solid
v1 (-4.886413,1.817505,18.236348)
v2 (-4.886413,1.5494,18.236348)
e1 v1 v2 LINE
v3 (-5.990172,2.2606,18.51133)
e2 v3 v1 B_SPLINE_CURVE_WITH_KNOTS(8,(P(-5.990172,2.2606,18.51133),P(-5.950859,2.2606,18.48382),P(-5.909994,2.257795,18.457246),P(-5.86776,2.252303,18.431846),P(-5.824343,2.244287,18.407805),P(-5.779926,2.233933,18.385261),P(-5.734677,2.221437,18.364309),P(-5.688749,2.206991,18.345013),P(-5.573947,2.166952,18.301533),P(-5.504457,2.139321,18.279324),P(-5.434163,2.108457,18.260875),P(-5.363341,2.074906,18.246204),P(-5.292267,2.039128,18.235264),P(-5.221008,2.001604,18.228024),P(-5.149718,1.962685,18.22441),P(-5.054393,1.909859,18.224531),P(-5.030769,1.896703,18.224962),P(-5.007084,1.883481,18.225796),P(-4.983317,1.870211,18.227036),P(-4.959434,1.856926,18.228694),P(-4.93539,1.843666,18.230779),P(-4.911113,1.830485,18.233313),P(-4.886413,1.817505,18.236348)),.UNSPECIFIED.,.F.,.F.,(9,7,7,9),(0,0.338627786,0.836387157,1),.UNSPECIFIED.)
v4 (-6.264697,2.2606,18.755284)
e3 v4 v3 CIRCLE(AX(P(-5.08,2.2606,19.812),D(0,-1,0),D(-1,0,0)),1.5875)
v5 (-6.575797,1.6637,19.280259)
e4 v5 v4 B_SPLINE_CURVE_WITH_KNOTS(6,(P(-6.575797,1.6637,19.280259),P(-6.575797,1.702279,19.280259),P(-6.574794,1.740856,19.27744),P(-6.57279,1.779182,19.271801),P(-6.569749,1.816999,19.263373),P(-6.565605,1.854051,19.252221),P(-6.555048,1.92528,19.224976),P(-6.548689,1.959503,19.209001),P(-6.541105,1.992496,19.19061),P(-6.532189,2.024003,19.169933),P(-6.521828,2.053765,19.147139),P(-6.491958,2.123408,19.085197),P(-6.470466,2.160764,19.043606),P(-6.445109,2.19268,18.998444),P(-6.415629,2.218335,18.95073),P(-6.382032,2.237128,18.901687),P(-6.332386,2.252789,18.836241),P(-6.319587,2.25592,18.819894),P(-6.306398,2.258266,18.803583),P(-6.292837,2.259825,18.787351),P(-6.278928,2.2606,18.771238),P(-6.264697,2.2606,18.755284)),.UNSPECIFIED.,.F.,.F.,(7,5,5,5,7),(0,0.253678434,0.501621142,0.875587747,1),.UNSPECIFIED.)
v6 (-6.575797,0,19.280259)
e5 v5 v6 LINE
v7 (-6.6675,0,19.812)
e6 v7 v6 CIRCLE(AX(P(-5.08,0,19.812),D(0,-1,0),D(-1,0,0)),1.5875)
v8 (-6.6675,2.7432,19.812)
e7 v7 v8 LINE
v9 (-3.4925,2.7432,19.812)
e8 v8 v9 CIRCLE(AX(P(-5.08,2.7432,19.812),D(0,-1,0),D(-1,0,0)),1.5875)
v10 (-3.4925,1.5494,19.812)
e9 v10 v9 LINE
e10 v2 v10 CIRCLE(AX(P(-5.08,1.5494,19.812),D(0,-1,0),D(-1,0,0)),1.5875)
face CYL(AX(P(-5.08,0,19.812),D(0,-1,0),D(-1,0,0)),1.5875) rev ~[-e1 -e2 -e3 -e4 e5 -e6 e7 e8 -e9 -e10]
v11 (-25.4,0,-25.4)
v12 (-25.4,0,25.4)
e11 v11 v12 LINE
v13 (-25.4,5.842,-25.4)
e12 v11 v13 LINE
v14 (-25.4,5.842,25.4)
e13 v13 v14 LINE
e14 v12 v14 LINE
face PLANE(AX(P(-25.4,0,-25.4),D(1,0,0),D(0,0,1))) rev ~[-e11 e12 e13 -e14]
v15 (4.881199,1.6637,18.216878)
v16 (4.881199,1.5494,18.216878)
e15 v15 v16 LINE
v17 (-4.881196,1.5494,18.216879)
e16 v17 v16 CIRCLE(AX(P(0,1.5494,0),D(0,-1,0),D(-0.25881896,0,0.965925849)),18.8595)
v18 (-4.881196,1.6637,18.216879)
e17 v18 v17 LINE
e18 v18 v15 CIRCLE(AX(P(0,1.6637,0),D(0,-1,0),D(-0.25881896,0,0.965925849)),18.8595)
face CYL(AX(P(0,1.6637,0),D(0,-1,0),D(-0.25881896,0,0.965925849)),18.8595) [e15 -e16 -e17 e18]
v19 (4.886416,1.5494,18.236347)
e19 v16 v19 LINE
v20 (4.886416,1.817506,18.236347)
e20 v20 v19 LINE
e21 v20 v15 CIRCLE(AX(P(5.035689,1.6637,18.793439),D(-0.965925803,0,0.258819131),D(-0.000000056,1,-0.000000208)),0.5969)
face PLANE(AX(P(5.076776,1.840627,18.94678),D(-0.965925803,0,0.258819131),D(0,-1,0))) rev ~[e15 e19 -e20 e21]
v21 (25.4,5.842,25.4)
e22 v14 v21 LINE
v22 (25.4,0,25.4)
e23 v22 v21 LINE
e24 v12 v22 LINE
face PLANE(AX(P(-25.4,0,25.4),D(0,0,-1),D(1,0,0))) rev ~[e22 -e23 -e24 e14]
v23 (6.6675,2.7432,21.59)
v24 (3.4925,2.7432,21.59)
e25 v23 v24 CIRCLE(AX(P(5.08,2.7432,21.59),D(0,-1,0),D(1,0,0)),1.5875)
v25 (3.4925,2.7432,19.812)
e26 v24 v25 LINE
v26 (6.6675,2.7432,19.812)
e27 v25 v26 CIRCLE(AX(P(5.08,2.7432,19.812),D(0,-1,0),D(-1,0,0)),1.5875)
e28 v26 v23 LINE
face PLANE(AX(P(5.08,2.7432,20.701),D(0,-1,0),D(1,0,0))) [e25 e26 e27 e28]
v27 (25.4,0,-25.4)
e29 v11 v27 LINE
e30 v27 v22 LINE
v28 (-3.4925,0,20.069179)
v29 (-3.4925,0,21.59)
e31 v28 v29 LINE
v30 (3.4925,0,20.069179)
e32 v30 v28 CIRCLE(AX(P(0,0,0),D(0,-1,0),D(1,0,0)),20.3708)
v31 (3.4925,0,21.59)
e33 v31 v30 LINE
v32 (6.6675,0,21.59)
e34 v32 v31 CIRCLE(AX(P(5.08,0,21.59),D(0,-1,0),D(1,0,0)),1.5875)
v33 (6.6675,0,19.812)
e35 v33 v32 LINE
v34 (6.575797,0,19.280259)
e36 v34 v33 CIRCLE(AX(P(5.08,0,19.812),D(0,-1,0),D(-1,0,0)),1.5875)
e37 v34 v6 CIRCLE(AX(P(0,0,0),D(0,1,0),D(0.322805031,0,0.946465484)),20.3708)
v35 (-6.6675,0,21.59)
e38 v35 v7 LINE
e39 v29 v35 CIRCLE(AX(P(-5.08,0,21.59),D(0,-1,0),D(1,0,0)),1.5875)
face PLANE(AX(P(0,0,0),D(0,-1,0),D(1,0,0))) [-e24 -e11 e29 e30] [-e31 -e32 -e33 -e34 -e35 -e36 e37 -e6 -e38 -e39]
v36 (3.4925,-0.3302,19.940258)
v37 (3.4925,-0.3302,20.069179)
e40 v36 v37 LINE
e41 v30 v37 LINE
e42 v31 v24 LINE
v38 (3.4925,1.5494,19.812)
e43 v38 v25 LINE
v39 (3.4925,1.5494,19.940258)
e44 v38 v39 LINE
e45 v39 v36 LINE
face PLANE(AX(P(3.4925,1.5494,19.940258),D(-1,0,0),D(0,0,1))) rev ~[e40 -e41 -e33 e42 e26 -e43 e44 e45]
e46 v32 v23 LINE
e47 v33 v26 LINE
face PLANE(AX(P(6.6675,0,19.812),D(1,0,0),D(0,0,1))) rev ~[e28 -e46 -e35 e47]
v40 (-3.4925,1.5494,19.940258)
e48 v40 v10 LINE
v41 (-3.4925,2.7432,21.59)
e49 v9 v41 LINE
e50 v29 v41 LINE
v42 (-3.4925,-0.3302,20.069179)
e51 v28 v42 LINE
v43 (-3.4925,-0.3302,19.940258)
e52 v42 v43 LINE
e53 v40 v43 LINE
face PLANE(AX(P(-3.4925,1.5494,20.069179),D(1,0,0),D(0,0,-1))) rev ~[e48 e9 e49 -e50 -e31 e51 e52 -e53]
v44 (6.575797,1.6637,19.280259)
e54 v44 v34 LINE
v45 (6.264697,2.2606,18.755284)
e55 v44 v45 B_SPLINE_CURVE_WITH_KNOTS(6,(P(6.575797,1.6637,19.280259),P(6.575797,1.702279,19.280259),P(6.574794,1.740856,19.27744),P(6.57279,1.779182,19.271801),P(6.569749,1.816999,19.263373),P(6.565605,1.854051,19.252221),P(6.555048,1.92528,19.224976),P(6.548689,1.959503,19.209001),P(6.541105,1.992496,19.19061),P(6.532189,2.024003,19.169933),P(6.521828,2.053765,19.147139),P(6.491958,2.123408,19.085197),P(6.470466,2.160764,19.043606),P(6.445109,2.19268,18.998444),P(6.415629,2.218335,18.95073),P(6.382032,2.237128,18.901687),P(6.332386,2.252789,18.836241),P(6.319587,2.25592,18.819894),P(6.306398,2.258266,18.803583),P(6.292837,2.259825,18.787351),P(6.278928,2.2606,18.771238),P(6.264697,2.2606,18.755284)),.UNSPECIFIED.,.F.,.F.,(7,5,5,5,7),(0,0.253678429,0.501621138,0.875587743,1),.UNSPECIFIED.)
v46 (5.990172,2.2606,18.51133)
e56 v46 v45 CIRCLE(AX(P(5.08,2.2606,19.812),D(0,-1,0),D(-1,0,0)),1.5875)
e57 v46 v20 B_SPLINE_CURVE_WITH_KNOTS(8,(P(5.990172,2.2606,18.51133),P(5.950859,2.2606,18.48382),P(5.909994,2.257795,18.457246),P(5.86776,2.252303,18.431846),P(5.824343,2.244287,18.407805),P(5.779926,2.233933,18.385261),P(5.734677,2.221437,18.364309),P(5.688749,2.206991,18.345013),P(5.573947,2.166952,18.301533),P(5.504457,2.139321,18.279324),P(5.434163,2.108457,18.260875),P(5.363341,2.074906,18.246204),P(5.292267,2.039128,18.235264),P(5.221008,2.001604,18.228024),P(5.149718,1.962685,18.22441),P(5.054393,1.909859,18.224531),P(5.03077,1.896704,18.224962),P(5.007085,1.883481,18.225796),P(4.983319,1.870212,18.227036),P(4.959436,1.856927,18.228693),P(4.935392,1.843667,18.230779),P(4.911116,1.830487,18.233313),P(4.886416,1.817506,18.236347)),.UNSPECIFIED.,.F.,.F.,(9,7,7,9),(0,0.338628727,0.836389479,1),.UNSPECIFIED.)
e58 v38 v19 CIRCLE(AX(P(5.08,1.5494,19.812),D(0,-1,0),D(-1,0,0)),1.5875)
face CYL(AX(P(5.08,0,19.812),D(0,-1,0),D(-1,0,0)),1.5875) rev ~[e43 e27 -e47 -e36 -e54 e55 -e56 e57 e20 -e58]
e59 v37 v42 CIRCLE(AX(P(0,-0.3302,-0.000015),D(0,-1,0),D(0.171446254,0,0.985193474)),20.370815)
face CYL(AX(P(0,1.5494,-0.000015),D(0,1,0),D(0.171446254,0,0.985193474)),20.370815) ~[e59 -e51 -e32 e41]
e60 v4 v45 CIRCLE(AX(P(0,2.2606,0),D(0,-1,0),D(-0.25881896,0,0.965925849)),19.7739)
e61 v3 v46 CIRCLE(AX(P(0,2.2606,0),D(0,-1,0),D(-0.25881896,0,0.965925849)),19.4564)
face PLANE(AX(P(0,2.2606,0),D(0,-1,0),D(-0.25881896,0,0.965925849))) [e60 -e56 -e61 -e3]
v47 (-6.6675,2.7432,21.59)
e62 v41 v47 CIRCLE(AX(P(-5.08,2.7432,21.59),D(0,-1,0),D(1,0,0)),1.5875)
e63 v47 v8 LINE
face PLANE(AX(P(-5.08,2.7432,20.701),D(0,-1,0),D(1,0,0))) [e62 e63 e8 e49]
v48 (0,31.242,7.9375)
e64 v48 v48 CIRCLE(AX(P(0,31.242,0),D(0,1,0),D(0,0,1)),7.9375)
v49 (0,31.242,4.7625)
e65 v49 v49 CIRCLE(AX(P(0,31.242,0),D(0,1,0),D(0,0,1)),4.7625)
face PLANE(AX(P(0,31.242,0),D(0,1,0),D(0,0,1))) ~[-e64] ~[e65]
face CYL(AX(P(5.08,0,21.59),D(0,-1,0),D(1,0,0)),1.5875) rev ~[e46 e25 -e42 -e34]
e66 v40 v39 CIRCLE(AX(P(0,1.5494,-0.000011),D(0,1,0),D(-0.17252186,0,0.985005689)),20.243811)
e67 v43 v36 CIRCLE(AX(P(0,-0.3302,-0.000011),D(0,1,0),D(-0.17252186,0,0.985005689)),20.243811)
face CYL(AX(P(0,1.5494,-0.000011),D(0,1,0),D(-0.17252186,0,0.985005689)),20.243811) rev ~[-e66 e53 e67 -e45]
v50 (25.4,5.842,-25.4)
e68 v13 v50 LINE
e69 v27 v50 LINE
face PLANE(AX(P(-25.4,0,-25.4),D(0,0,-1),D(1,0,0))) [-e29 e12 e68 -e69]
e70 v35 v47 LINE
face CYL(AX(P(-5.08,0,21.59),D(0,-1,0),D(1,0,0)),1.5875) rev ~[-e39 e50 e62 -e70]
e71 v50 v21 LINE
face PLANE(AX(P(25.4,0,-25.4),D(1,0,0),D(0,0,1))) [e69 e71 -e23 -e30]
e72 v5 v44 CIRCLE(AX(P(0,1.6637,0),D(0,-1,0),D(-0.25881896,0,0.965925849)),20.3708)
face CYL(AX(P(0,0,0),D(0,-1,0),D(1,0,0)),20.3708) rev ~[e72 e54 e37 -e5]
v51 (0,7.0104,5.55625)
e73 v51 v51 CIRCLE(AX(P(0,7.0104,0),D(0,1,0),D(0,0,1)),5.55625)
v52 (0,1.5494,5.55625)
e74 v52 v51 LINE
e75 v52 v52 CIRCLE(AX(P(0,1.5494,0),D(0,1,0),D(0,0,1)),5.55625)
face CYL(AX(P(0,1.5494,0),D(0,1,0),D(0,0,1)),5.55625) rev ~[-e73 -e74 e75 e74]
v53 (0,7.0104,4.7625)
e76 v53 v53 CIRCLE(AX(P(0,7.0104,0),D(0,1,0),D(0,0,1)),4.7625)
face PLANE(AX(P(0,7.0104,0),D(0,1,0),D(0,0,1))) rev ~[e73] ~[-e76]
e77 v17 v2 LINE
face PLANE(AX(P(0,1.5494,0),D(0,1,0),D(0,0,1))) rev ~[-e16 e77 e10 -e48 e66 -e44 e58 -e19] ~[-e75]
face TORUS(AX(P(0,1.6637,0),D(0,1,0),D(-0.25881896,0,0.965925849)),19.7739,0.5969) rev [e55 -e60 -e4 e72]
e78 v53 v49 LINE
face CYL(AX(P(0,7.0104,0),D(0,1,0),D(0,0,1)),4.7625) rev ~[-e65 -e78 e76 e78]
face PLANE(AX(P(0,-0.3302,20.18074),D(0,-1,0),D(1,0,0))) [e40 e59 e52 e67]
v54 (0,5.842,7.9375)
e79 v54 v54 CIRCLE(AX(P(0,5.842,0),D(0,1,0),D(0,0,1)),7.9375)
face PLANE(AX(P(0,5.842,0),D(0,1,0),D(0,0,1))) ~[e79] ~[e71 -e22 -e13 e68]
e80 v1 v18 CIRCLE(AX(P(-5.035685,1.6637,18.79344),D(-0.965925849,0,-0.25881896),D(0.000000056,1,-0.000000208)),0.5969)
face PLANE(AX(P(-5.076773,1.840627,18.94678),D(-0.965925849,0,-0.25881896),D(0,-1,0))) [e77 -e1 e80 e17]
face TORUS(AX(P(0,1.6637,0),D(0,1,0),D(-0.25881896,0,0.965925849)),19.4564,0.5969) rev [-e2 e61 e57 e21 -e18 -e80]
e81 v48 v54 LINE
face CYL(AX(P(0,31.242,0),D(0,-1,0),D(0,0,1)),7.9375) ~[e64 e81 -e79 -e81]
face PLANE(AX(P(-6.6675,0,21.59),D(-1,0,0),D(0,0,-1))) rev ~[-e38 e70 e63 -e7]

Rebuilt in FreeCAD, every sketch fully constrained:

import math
import FreeCAD as App
import Part
import Sketcher

V = App.Vector
Q = App.Units.Quantity

doc = App.newDocument("Part")
body = doc.addObject("PartDesign::Body", "Body")

# Sketch on XZ plane
sketch1 = body.newObject("Sketcher::SketchObject", "Sketch")
sketch1.AttachmentSupport = (doc.getObject("XZ_Plane"), [""])
sketch1.MapMode = "FlatFace"
sketch1.addGeometry(Part.LineSegment(V(-25, 25, 0), V(-25, -25, 0)), False)
sketch1.addGeometry(Part.LineSegment(V(-25, -25, 0), V(25, -25, 0)), False)
sketch1.addGeometry(Part.LineSegment(V(25, -25, 0), V(25, 25, 0)), False)
sketch1.addGeometry(Part.LineSegment(V(25, 25, 0), V(-25, 25, 0)), False)
sketch1.addGeometry(Part.Circle(V(0, 0, 0), V(0, 0, 1), 20), False)
sketch1.addConstraint(Sketcher.Constraint("Coincident", 0, 2, 1, 1))
sketch1.addConstraint(Sketcher.Constraint("Coincident", 1, 2, 2, 1))
sketch1.addConstraint(Sketcher.Constraint("Coincident", 2, 2, 3, 1))
sketch1.addConstraint(Sketcher.Constraint("Coincident", 3, 2, 0, 1))
sketch1.addConstraint(Sketcher.Constraint("Vertical", 0))
sketch1.addConstraint(Sketcher.Constraint("Horizontal", 1))
sketch1.addConstraint(Sketcher.Constraint("Vertical", 2))
sketch1.addConstraint(Sketcher.Constraint("Horizontal", 3))
sketch1.addConstraint(Sketcher.Constraint("Coincident", 4, 3, -1, 1))
sketch1.addConstraint(Sketcher.Constraint("Symmetric", 0, 2, 2, 2, -1, 1))
sketch1.addConstraint(Sketcher.Constraint("Equal", 3, 0))
sketch1.addConstraint(Sketcher.Constraint("DistanceX", 1, 1, 1, 2, Q("2 in")))
sketch1.addConstraint(Sketcher.Constraint("Diameter", 4, Q("1.604 in")))
pad1 = body.newObject("PartDesign::Pad", "Pad")
pad1.Profile = sketch1
pad1.Length = Q("0.23 in")
pad1.Reversed = True

# Sketch on YZ plane
sketch2 = body.newObject("Sketcher::SketchObject", "Sketch001")
sketch2.AttachmentSupport = (doc.getObject("YZ_Plane"), [""])
sketch2.MapMode = "FlatFace"
sketch2.addGeometry(Part.LineSegment(V(7, 4.8, 0), V(31.2, 4.8, 0)), False)
sketch2.addGeometry(Part.LineSegment(V(31.2, 4.8, 0), V(31.2, 7.9, 0)), False)
sketch2.addGeometry(Part.LineSegment(V(31.2, 7.9, 0), V(5.8, 7.9, 0)), False)
sketch2.addGeometry(Part.LineSegment(V(5.8, 7.9, 0), V(5.8, 20.4, 0)), False)
sketch2.addGeometry(Part.LineSegment(V(5.8, 20.4, 0), V(1.5, 20.4, 0)), False)
sketch2.addGeometry(Part.LineSegment(V(1.5, 20.4, 0), V(1.5, 5.6, 0)), False)
sketch2.addGeometry(Part.LineSegment(V(1.5, 5.6, 0), V(7, 5.6, 0)), False)
sketch2.addGeometry(Part.LineSegment(V(7, 5.6, 0), V(7, 4.8, 0)), False)
sketch2.addConstraint(Sketcher.Constraint("Coincident", 0, 2, 1, 1))
sketch2.addConstraint(Sketcher.Constraint("Coincident", 1, 2, 2, 1))
sketch2.addConstraint(Sketcher.Constraint("Coincident", 2, 2, 3, 1))
sketch2.addConstraint(Sketcher.Constraint("Coincident", 3, 2, 4, 1))
sketch2.addConstraint(Sketcher.Constraint("Coincident", 4, 2, 5, 1))
sketch2.addConstraint(Sketcher.Constraint("Coincident", 5, 2, 6, 1))
sketch2.addConstraint(Sketcher.Constraint("Coincident", 6, 2, 7, 1))
sketch2.addConstraint(Sketcher.Constraint("Coincident", 7, 2, 0, 1))
sketch2.addConstraint(Sketcher.Constraint("Horizontal", 0))
sketch2.addConstraint(Sketcher.Constraint("Vertical", 1))
sketch2.addConstraint(Sketcher.Constraint("Horizontal", 2))
sketch2.addConstraint(Sketcher.Constraint("Vertical", 3))
sketch2.addConstraint(Sketcher.Constraint("Horizontal", 4))
sketch2.addConstraint(Sketcher.Constraint("Vertical", 5))
sketch2.addConstraint(Sketcher.Constraint("Horizontal", 6))
sketch2.addConstraint(Sketcher.Constraint("Vertical", 7))
sketch2.addConstraint(Sketcher.Constraint("DistanceX", 2, 2, 2, 1, Q("1 in")))
sketch2.addConstraint(Sketcher.Constraint("DistanceX", 0, 1, 0, 2, Q("0.954 in")))
sketch2.addConstraint(Sketcher.Constraint("DistanceX", 4, 2, 4, 1, Q("0.169 in")))
sketch2.addConstraint(Sketcher.Constraint("DistanceY", 1, 1, 1, 2, Q("0.125 in")))
sketch2.addConstraint(Sketcher.Constraint("DistanceY", 7, 2, 7, 1, Q("0.03125 in")))
sketch2.addConstraint(Sketcher.Constraint("DistanceX", -1, 1, 0, 2, Q("1.23 in")))
sketch2.addConstraint(Sketcher.Constraint("DistanceY", 3, 1, 3, 2, Q("0.4895 in")))
sketch2.addConstraint(Sketcher.Constraint("DistanceY", -1, 1, 0, 2, Q("0.1875 in")))
revolution = body.newObject("PartDesign::Revolution", "Revolution")
revolution.Profile = sketch2
revolution.ReferenceAxis = (sketch2, ["H_Axis"])
revolution.Angle = 360

# Sketch on an angled plane
sketch3 = body.newObject("Sketcher::SketchObject", "Sketch002")
sketch3.Placement = App.Placement(V(0, 0, 0), App.Rotation(V(0, -1, 0), V(-0.25881896, 0, 0.965925849), V(-0.965925849, 0, -0.25881896), "ZXY"))
sketch3.addGeometry(Part.LineSegment(V(-1.55, 20.37, 0), V(-1.66, 20.37, 0)), False)
sketch3.addGeometry(Part.ArcOfCircle(Part.Circle(V(-1.66, 19.77, 0), V(0, 0, 1), 0.6), math.radians(90), math.radians(180)), False)
sketch3.addGeometry(Part.LineSegment(V(-2.26, 19.77, 0), V(-2.26, 19.46, 0)), False)
sketch3.addGeometry(Part.ArcOfCircle(Part.Circle(V(-1.66, 19.46, 0), V(0, 0, 1), 0.6), math.radians(-180), math.radians(-90)), False)
sketch3.addGeometry(Part.LineSegment(V(-1.66, 18.86, 0), V(-1.55, 18.86, 0)), False)
sketch3.addGeometry(Part.LineSegment(V(-1.55, 18.86, 0), V(-1.55, 20.37, 0)), False)
sketch3.addConstraint(Sketcher.Constraint("Tangent", 0, 2, 1, 1))
sketch3.addConstraint(Sketcher.Constraint("Tangent", 1, 2, 2, 1))
sketch3.addConstraint(Sketcher.Constraint("Tangent", 2, 2, 3, 1))
sketch3.addConstraint(Sketcher.Constraint("Tangent", 3, 2, 4, 1))
sketch3.addConstraint(Sketcher.Constraint("Coincident", 4, 2, 5, 1))
sketch3.addConstraint(Sketcher.Constraint("Coincident", 5, 2, 0, 1))
sketch3.addConstraint(Sketcher.Constraint("Horizontal", 0))
sketch3.addConstraint(Sketcher.Constraint("Vertical", 2))
sketch3.addConstraint(Sketcher.Constraint("Horizontal", 4))
sketch3.addConstraint(Sketcher.Constraint("Vertical", 5))
sketch3.addConstraint(Sketcher.Constraint("Equal", 1, 3))
sketch3.addConstraint(Sketcher.Constraint("Radius", 1, Q("0.0235 in")))
sketch3.addConstraint(Sketcher.Constraint("DistanceX", 0, 2, 0, 1, Q("0.0045 in")))
sketch3.addConstraint(Sketcher.Constraint("DistanceY", 2, 2, 2, 1, Q("0.0125 in")))
sketch3.addConstraint(Sketcher.Constraint("DistanceY", -1, 1, 3, 3, Q("0.766 in")))
sketch3.addConstraint(Sketcher.Constraint("DistanceX", 1, 2, -1, 1, Q("0.089 in")))
groove = body.newObject("PartDesign::Groove", "Groove")
groove.Profile = sketch3
groove.ReferenceAxis = (sketch3, ["H_Axis"])
groove.Angle = 330

# Sketch on XZ plane
sketch4 = body.newObject("Sketcher::SketchObject", "Sketch003")
sketch4.AttachmentSupport = (doc.getObject("XZ_Plane"), [""])
sketch4.MapMode = "FlatFace"
sketch4.addGeometry(Part.LineSegment(V(-3.5, 19.8, 0), V(-3.5, 21.6, 0)), False)
sketch4.addGeometry(Part.ArcOfCircle(Part.Circle(V(-5.1, 21.6, 0), V(0, 0, 1), 1.6), math.radians(0), math.radians(180)), False)
sketch4.addGeometry(Part.LineSegment(V(-6.7, 21.6, 0), V(-6.7, 19.8, 0)), False)
sketch4.addGeometry(Part.ArcOfCircle(Part.Circle(V(-5.1, 19.8, 0), V(0, 0, 1), 1.6), math.radians(180), math.radians(360)), False)
sketch4.addGeometry(Part.LineSegment(V(3.5, 21.6, 0), V(3.5, 19.8, 0)), False)
sketch4.addGeometry(Part.ArcOfCircle(Part.Circle(V(5.1, 19.8, 0), V(0, 0, 1), 1.6), math.radians(180), math.radians(360)), False)
sketch4.addGeometry(Part.LineSegment(V(6.7, 19.8, 0), V(6.7, 21.6, 0)), False)
sketch4.addGeometry(Part.ArcOfCircle(Part.Circle(V(5.1, 21.6, 0), V(0, 0, 1), 1.6), math.radians(0), math.radians(180)), False)
sketch4.addConstraint(Sketcher.Constraint("Tangent", 0, 2, 1, 1))
sketch4.addConstraint(Sketcher.Constraint("Tangent", 1, 2, 2, 1))
sketch4.addConstraint(Sketcher.Constraint("Tangent", 2, 2, 3, 1))
sketch4.addConstraint(Sketcher.Constraint("Tangent", 3, 2, 0, 1))
sketch4.addConstraint(Sketcher.Constraint("Tangent", 4, 2, 5, 1))
sketch4.addConstraint(Sketcher.Constraint("Tangent", 5, 2, 6, 1))
sketch4.addConstraint(Sketcher.Constraint("Tangent", 6, 2, 7, 1))
sketch4.addConstraint(Sketcher.Constraint("Tangent", 7, 2, 4, 1))
sketch4.addConstraint(Sketcher.Constraint("Vertical", 0))
sketch4.addConstraint(Sketcher.Constraint("Vertical", 2))
sketch4.addConstraint(Sketcher.Constraint("Vertical", 4))
sketch4.addConstraint(Sketcher.Constraint("Vertical", 6))
sketch4.addConstraint(Sketcher.Constraint("Equal", 3, 5))
sketch4.addConstraint(Sketcher.Constraint("Symmetric", 3, 3, 5, 3, -2))
sketch4.addConstraint(Sketcher.Constraint("Horizontal", 1, 3, 7, 3))
sketch4.addConstraint(Sketcher.Constraint("Radius", 1, Q("0.0625 in")))
sketch4.addConstraint(Sketcher.Constraint("DistanceY", 0, 1, 0, 2, Q("0.07 in")))
sketch4.addConstraint(Sketcher.Constraint("DistanceX", 1, 3, -1, 1, Q("0.2 in")))
sketch4.addConstraint(Sketcher.Constraint("DistanceY", -1, 1, 1, 3, Q("0.85 in")))
pocket1 = body.newObject("PartDesign::Pocket", "Pocket")
pocket1.Profile = sketch4
pocket1.Length = Q("0.108 in")

# Sketch on XZ plane
sketch5 = body.newObject("Sketcher::SketchObject", "Sketch004")
sketch5.AttachmentSupport = (doc.getObject("XZ_Plane"), [""])
sketch5.MapMode = "FlatFace"
sketch5.AttachmentOffset = App.Placement(V(0, 0, -0.061 * 25.4), App.Rotation())
sketch5.addGeometry(Part.LineSegment(V(3.49, 19.94, 0), V(3.49, 20.07, 0)), False)
sketch5.addGeometry(Part.ArcOfCircle(Part.Circle(V(0, 0, 0), V(0, 0, 1), 20.37), math.radians(80.13), math.radians(99.87)), False)
sketch5.addGeometry(Part.LineSegment(V(-3.49, 20.07, 0), V(-3.49, 19.94, 0)), False)
sketch5.addGeometry(Part.ArcOfCircle(Part.Circle(V(0, 0, 0), V(0, 0, 1), 20.24), math.radians(80.07), math.radians(99.93)), False)
sketch5.addConstraint(Sketcher.Constraint("Coincident", 0, 2, 1, 1))
sketch5.addConstraint(Sketcher.Constraint("Coincident", 1, 2, 2, 1))
sketch5.addConstraint(Sketcher.Constraint("Coincident", 2, 2, 3, 2))
sketch5.addConstraint(Sketcher.Constraint("Coincident", 3, 1, 0, 1))
sketch5.addConstraint(Sketcher.Constraint("Vertical", 0))
sketch5.addConstraint(Sketcher.Constraint("Vertical", 2))
sketch5.addConstraint(Sketcher.Constraint("Coincident", 3, 3, 1, 3))
sketch5.addConstraint(Sketcher.Constraint("Symmetric", 0, 2, 1, 2, -2))
sketch5.addConstraint(Sketcher.Constraint("Radius", 3, Q("20.243811 mm")))
sketch5.addConstraint(Sketcher.Constraint("DistanceX", 1, 2, 0, 2, Q("0.275 in")))
sketch5.addConstraint(Sketcher.Constraint("Radius", 1, Q("20.370815 mm")))
sketch5.addConstraint(Sketcher.Constraint("DistanceY", -1, 1, 0, 2, Q("20.069179 mm")))
pad2 = body.newObject("PartDesign::Pad", "Pad001")
pad2.Profile = sketch5
pad2.Length = Q("0.074 in")

doc.recompute()
